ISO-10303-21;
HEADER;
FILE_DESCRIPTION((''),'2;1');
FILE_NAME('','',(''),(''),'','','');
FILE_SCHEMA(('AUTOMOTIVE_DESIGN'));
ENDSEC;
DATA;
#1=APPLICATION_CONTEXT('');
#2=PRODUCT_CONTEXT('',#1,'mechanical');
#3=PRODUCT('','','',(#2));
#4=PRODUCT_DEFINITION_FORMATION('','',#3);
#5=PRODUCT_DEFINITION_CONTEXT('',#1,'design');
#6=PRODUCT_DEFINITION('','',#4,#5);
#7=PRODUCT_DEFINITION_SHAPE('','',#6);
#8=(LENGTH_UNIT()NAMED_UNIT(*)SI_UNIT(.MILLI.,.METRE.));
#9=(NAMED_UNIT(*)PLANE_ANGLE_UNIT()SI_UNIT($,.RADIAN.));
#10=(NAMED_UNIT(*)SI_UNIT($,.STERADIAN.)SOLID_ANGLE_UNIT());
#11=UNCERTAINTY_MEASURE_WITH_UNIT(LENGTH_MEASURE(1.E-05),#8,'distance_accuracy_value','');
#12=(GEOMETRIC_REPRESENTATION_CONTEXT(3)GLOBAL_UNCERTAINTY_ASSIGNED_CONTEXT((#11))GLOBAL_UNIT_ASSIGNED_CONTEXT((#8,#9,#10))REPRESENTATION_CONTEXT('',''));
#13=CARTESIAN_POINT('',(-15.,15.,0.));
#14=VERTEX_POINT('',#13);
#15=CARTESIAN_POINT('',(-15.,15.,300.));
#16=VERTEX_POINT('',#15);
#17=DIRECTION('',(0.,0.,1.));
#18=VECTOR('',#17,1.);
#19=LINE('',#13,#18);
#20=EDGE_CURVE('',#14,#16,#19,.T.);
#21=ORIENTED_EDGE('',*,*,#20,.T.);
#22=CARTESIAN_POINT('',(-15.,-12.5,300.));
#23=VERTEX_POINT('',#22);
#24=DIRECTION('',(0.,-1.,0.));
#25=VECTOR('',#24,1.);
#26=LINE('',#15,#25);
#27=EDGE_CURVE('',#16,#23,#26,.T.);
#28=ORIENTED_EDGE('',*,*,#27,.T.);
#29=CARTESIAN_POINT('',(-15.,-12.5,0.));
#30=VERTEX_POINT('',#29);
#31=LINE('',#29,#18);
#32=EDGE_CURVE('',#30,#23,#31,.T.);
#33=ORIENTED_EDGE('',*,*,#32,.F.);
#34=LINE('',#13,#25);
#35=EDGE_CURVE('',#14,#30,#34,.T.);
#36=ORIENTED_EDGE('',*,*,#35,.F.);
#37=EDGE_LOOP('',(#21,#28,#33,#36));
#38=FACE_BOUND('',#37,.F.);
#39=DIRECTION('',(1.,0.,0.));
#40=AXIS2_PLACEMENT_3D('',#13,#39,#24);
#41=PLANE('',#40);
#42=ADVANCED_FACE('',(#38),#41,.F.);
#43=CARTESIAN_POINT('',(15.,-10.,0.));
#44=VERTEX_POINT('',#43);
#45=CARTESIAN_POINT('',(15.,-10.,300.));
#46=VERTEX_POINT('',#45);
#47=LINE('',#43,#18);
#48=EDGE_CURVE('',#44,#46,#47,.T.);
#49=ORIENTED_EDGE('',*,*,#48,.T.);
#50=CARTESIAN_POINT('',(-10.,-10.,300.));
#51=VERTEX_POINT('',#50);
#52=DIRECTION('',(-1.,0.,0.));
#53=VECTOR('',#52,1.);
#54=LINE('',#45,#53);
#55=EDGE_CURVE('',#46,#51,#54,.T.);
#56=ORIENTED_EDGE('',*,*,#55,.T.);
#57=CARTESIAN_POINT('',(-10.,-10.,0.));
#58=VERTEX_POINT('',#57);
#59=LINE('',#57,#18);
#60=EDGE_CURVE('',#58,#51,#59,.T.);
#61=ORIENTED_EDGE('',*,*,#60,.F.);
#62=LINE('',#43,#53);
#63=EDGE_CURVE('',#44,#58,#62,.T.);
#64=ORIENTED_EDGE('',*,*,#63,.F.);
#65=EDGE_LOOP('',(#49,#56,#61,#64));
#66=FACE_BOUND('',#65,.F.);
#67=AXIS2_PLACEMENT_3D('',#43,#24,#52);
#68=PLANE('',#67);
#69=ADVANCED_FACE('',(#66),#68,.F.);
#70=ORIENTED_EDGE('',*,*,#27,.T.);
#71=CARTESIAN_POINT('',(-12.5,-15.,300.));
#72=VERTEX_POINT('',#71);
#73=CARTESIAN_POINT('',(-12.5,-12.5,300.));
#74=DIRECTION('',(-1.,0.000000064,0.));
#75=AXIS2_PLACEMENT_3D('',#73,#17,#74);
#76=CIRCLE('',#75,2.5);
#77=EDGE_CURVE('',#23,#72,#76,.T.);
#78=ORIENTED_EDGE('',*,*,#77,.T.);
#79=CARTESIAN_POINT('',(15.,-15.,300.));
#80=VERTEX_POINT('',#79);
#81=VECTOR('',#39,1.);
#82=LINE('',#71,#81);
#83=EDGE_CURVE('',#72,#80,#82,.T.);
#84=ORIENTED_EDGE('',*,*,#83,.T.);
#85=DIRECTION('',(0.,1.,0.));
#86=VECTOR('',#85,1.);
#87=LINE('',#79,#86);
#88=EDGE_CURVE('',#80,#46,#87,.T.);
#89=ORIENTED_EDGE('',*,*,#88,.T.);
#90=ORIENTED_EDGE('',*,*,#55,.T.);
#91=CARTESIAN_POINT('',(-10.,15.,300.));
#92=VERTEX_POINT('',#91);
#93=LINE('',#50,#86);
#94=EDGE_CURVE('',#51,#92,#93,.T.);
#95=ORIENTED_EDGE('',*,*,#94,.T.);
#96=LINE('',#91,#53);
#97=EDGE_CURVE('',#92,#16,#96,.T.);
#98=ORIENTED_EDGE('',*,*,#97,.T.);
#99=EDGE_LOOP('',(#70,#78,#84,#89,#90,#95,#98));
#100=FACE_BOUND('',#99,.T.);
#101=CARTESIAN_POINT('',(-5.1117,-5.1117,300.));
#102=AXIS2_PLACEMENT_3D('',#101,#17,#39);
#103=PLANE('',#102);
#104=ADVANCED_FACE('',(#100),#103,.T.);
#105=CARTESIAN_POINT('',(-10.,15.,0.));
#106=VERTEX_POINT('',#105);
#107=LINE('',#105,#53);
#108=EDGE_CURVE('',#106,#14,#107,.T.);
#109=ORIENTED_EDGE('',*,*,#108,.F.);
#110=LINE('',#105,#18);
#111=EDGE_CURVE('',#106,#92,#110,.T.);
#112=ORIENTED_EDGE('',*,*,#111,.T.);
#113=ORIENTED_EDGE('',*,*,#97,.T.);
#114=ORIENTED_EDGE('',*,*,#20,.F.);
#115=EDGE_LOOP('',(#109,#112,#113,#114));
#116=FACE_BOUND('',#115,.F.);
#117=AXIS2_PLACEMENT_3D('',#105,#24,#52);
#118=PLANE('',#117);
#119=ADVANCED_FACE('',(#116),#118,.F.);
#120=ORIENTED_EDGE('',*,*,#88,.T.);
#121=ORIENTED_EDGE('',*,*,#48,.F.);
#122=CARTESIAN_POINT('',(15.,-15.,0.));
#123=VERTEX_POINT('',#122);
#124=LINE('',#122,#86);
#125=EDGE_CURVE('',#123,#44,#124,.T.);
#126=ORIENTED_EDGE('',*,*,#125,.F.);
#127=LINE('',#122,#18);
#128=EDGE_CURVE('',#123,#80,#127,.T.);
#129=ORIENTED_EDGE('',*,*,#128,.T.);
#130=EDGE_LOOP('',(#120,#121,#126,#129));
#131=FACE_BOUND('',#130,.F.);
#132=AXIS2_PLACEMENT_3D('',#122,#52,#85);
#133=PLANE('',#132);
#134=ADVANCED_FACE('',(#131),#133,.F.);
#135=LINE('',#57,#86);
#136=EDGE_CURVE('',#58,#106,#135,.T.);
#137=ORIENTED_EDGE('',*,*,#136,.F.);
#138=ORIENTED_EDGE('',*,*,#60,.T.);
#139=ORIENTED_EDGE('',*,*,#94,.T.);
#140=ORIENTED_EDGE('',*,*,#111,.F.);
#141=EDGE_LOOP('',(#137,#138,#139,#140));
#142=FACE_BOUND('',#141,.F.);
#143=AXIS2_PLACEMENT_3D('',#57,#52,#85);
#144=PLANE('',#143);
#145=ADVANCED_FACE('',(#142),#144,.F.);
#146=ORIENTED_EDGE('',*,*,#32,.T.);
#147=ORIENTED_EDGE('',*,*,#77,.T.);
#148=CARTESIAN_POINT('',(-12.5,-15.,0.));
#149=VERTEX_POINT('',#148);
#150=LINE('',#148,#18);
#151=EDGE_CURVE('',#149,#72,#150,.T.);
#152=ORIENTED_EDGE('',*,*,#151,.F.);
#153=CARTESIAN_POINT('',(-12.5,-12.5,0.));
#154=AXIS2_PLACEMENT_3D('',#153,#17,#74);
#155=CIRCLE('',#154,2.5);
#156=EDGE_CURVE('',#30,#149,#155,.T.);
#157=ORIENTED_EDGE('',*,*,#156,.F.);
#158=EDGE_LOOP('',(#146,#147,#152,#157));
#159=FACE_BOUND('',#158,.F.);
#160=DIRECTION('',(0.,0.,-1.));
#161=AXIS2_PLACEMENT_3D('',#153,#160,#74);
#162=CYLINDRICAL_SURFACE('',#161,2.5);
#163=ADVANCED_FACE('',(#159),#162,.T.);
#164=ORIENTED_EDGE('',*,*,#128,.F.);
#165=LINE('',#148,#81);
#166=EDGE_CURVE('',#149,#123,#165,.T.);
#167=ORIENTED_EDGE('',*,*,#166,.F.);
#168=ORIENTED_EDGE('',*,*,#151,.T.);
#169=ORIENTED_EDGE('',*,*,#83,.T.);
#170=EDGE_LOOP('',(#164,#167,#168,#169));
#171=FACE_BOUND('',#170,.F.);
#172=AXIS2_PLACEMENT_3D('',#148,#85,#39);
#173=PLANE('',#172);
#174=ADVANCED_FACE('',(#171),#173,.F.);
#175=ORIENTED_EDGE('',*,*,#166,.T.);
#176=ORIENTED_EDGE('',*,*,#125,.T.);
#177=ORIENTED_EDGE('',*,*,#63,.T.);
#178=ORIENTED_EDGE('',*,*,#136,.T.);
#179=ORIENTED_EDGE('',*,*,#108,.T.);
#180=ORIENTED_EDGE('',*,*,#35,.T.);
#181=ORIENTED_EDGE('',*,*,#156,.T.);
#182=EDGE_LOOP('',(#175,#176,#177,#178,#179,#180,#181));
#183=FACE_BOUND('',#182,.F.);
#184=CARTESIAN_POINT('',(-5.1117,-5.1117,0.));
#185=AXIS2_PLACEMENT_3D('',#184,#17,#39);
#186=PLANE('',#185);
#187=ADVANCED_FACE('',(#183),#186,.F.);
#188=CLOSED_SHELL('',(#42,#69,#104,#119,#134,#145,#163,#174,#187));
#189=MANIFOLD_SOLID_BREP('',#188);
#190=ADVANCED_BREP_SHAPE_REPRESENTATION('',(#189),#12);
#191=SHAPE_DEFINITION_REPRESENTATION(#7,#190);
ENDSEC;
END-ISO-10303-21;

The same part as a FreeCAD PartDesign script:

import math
import FreeCAD as App
import Part
import Sketcher
from FreeCAD import Vector
Q = App.Units.Quantity

doc = App.newDocument("Part")
body = doc.addObject("PartDesign::Body", "Body")

# Sketch on XY plane
sketch1 = doc.addObject("Sketcher::SketchObject", "Sketch")
body.addObject(sketch1)
sketch1.AttachmentSupport = (doc.XY_Plane, [""])
sketch1.MapMode = "FlatFace"
sketch1.addGeometry(Part.LineSegment(Vector(-10, 15, 0), Vector(-15, 15, 0)), False)
sketch1.addGeometry(Part.LineSegment(Vector(-15, 15, 0), Vector(-15, -12.5, 0)), False)
sketch1.addGeometry(Part.ArcOfCircle(Part.Circle(Vector(-12.5, -12.5, 0), Vector(0, 0, 1), 2.5), math.radians(180), math.radians(270)), False)
sketch1.addGeometry(Part.LineSegment(Vector(-12.5, -15, 0), Vector(15, -15, 0)), False)
sketch1.addGeometry(Part.LineSegment(Vector(15, -15, 0), Vector(15, -10, 0)), False)
sketch1.addGeometry(Part.LineSegment(Vector(15, -10, 0), Vector(-10, -10, 0)), False)
sketch1.addGeometry(Part.LineSegment(Vector(-10, -10, 0), Vector(-10, 15, 0)), False)
sketch1.addConstraint(Sketcher.Constraint("Coincident", 0, 2, 1, 1))
sketch1.addConstraint(Sketcher.Constraint("Tangent", 1, 2, 2, 1))
sketch1.addConstraint(Sketcher.Constraint("Tangent", 2, 2, 3, 1))
sketch1.addConstraint(Sketcher.Constraint("Coincident", 3, 2, 4, 1))
sketch1.addConstraint(Sketcher.Constraint("Coincident", 4, 2, 5, 1))
sketch1.addConstraint(Sketcher.Constraint("Coincident", 5, 2, 6, 1))
sketch1.addConstraint(Sketcher.Constraint("Coincident", 6, 2, 0, 1))
sketch1.addConstraint(Sketcher.Constraint("Horizontal", 0))
sketch1.addConstraint(Sketcher.Constraint("Vertical", 1))
sketch1.addConstraint(Sketcher.Constraint("Horizontal", 3))
sketch1.addConstraint(Sketcher.Constraint("Vertical", 4))
sketch1.addConstraint(Sketcher.Constraint("Horizontal", 5))
sketch1.addConstraint(Sketcher.Constraint("Vertical", 6))
sketch1.addConstraint(Sketcher.Constraint("Symmetric", 0, 2, 3, 2, -1, 1))
sketch1.addConstraint(Sketcher.Constraint("Equal", 3, 1))
sketch1.addConstraint(Sketcher.Constraint("Equal", 0, 4))
sketch1.addConstraint(Sketcher.Constraint("Radius", 2, Q("2.5 mm")))
sketch1.addConstraint(Sketcher.Constraint("DistanceX", 0, 2, 0, 1, Q("5 mm")))
sketch1.addConstraint(Sketcher.Constraint("DistanceX", 5, 2, 5, 1, Q("25 mm")))
pad1 = doc.addObject("PartDesign::Pad", "Pad")
body.addObject(pad1)
pad1.Profile = sketch1
pad1.Length = 300

doc.recompute()
